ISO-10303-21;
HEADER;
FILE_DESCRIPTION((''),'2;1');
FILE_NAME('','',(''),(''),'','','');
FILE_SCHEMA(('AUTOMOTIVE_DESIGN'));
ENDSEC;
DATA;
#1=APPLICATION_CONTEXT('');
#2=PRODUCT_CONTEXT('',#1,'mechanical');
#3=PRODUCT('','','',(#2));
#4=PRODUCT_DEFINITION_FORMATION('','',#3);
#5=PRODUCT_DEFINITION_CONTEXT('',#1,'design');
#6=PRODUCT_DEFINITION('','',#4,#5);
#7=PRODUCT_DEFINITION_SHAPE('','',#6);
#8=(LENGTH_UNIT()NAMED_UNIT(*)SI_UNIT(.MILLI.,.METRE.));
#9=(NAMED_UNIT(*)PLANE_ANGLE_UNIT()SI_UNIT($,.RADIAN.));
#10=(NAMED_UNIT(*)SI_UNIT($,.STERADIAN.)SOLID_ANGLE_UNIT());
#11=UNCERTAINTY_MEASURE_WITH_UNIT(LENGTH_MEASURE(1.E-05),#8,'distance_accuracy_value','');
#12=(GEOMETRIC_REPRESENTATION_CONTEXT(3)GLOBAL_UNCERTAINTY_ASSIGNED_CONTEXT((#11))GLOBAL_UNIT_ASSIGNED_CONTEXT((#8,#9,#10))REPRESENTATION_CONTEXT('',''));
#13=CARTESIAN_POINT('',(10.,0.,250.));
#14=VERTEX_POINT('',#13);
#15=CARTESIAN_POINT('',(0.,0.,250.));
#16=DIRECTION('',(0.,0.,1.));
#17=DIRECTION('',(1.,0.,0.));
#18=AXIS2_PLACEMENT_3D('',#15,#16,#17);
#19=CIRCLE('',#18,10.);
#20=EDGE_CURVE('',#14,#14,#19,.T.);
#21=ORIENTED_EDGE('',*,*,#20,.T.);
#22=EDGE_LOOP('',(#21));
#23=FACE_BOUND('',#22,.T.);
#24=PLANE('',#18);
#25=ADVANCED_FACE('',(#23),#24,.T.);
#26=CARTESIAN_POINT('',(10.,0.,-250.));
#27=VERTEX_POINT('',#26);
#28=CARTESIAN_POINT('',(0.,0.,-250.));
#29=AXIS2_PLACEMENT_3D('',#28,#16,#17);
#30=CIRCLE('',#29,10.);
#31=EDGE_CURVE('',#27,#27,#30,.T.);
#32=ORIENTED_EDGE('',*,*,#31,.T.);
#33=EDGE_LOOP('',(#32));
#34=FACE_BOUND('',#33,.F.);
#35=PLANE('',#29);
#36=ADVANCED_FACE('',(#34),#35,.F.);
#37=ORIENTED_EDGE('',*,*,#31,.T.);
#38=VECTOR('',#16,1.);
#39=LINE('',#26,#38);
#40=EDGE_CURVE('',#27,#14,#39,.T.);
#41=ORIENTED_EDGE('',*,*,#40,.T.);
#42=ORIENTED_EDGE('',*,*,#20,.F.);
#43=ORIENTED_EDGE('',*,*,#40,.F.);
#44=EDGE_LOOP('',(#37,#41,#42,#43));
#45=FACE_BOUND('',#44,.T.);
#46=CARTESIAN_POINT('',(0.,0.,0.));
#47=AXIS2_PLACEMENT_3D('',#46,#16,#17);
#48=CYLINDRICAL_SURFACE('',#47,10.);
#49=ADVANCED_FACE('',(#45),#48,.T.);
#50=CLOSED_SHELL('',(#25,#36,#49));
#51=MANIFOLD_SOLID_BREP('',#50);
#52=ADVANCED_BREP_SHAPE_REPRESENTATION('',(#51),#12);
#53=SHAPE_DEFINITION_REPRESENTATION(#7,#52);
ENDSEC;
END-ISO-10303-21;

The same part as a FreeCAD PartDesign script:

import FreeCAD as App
import Part
import Sketcher

V = App.Vector

doc = App.newDocument("Part")
params = doc.addObject("Spreadsheet::Sheet", "Params")
for row, (alias, value) in enumerate([
    ("sketch1_diameter", "20 mm"),
    ("pad1_length", "500 mm"),
], start=1):
    params.set(f"A{row}", alias)
    params.set(f"B{row}", "=" + value)
    params.setAlias(f"B{row}", alias)

body = doc.addObject("PartDesign::Body", "Body")

sketch1 = body.newObject("Sketcher::SketchObject", "Sketch")
sketch1.AttachmentSupport = (doc.getObject("XY_Plane"), [""])
sketch1.MapMode = "FlatFace"
sketch1.addGeometry(Part.Circle(V(0, 0, 0), V(0, 0, 1), 10), False)
sketch1.addConstraint(Sketcher.Constraint("Coincident", 0, 3, -1, 1))
sketch1.addConstraint(Sketcher.Constraint("Diameter", 0, 20.0))
sketch1.setExpression("Constraints[1]", "Params.sketch1_diameter")
pad1 = body.newObject("PartDesign::Pad", "Pad")
pad1.Profile = sketch1
pad1.setExpression("Length", "Params.pad1_length")
pad1.Midplane = True

doc.recompute()
